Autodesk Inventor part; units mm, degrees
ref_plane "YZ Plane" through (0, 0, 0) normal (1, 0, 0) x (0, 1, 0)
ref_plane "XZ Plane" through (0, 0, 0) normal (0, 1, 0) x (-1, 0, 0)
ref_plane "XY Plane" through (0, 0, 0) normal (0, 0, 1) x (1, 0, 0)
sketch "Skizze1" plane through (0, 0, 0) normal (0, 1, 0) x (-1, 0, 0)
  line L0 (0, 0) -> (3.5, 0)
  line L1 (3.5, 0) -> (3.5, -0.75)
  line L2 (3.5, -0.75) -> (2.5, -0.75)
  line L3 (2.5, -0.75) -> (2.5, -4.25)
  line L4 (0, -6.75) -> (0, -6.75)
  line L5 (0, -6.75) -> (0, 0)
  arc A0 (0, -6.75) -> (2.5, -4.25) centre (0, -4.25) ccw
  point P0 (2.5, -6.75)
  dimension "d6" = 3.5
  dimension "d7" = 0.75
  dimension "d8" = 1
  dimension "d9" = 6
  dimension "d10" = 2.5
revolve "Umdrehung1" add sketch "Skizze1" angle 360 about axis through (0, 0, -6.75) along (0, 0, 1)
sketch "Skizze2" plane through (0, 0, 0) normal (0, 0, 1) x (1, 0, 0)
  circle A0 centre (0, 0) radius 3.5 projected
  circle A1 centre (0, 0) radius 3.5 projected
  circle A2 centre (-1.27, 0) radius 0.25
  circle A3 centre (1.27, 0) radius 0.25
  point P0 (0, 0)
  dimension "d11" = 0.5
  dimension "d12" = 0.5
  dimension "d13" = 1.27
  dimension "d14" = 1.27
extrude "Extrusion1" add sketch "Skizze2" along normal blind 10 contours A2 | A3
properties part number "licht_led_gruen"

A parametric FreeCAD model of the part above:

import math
import FreeCAD as App
import Part
import Sketcher

V = App.Vector

doc = App.newDocument("Part")
body = doc.addObject("PartDesign::Body", "Body")

# Sketch on XZ plane
sketch1 = doc.addObject("Sketcher::SketchObject", "Sketch")
body.addObject(sketch1)
sketch1.AttachmentSupport = (doc.XZ_Plane, [""])
sketch1.MapMode = "FlatFace"
sketch1.addGeometry([
    Part.LineSegment(V(-3.5, 0, 0), V(0, 0, 0)),  # 0
    Part.LineSegment(V(0, 0, 0), V(0, -6.8, 0)),  # 1
    Part.ArcOfCircle(Part.Circle(V(0, -4.2, 0), V(0, 0, 1), 2.5), math.radians(180), math.radians(270)),  # 2
    Part.LineSegment(V(-2.5, -4.2, 0), V(-2.5, -0.8, 0)),  # 3
    Part.LineSegment(V(-2.5, -0.8, 0), V(-3.5, -0.8, 0)),  # 4
    Part.LineSegment(V(-3.5, -0.8, 0), V(-3.5, 0, 0)),  # 5
], False)
sketch1.addConstraint([
    Sketcher.Constraint("Coincident", 0, 2, 1, 1),
    Sketcher.Constraint("Coincident", 1, 2, 2, 2),
    Sketcher.Constraint("Tangent", 2, 1, 3, 1),
    Sketcher.Constraint("Coincident", 3, 2, 4, 1),
    Sketcher.Constraint("Coincident", 4, 2, 5, 1),
    Sketcher.Constraint("Coincident", 5, 2, 0, 1),
    Sketcher.Constraint("Horizontal", 0),
    Sketcher.Constraint("Vertical", 1),
    Sketcher.Constraint("Vertical", 3),
    Sketcher.Constraint("Horizontal", 4),
    Sketcher.Constraint("Vertical", 5),
    Sketcher.Constraint("Coincident", 0, 2, -1, 1),
    Sketcher.Constraint("PointOnObject", 2, 3, -2),
    Sketcher.Constraint("Equal", 0, 3),
    Sketcher.Constraint("Radius", 2, 2.5),
    Sketcher.Constraint("DistanceX", 4, 2, 4, 1, 1.0),
    Sketcher.Constraint("DistanceY", 5, 1, 5, 2, 0.75),
])
revolution = doc.addObject("PartDesign::Revolution", "Revolution")
body.addObject(revolution)
revolution.Profile = sketch1
revolution.ReferenceAxis = (sketch1, ["V_Axis"])
revolution.Angle = 360

# Sketch on XY plane
sketch2 = doc.addObject("Sketcher::SketchObject", "Sketch001")
body.addObject(sketch2)
sketch2.AttachmentSupport = (doc.XY_Plane, [""])
sketch2.MapMode = "FlatFace"
sketch2.addGeometry([
    Part.Circle(V(-1.27, 0, 0), V(0, 0, 1), 0.25),
    Part.Circle(V(1.27, 0, 0), V(0, 0, 1), 0.25),
], False)
sketch2.addConstraint([
    Sketcher.Constraint("Equal", 0, 1),
    Sketcher.Constraint("Symmetric", 0, 3, 1, 3, -1, 1),
    Sketcher.Constraint("PointOnObject", 0, 3, -1),
    Sketcher.Constraint("Diameter", 0, 0.5),
    Sketcher.Constraint("DistanceX", 0, 3, -1, 1, 1.27),
])
pad1 = doc.addObject("PartDesign::Pad", "Pad")
body.addObject(pad1)
pad1.Profile = sketch2
pad1.Length = 10

doc.recompute()
